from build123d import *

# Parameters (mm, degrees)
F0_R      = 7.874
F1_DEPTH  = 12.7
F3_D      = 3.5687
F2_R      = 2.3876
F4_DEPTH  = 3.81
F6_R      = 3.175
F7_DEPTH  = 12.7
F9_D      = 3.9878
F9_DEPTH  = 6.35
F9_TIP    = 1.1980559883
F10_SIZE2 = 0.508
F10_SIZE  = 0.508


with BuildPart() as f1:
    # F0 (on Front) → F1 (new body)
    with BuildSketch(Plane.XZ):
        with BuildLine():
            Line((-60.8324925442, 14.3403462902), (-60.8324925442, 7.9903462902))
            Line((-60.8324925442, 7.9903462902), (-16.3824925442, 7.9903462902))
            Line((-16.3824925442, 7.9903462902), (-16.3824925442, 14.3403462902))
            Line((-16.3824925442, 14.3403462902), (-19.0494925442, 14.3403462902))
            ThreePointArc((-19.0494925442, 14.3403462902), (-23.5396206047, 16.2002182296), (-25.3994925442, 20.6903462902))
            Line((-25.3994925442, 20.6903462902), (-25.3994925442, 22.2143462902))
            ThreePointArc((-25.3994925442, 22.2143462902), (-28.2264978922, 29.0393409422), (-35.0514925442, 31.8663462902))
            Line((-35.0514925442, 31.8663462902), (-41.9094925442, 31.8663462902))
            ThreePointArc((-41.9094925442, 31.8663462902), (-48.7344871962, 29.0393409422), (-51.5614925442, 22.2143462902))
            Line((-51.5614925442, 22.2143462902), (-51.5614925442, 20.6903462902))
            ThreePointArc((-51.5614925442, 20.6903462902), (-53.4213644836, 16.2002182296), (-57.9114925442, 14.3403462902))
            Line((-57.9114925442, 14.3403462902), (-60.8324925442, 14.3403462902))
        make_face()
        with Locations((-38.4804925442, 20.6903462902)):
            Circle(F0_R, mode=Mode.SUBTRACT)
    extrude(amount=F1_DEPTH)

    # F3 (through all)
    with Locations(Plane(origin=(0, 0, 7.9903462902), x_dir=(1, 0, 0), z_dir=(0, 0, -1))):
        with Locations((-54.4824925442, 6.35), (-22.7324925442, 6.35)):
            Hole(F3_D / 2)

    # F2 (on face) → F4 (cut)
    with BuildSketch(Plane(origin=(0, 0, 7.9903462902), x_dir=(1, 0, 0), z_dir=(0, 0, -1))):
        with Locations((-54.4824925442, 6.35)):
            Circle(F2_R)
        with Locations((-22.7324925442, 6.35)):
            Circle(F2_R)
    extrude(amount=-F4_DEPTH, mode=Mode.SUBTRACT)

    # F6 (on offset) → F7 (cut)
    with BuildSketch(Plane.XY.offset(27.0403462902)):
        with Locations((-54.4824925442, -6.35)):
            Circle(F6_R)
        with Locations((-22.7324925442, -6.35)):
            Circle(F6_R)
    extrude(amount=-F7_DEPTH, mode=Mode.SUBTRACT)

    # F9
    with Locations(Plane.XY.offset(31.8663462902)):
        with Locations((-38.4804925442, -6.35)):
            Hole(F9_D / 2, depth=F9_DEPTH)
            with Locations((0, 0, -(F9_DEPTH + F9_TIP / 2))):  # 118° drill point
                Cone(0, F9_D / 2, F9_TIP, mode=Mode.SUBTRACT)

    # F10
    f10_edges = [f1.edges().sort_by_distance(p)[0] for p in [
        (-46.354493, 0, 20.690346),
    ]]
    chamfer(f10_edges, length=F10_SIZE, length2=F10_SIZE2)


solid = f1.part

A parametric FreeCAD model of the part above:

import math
import FreeCAD as App
import Part
import Sketcher

V = App.Vector
Q = App.Units.Quantity


def edges_at(feature, points):
    """Names of the edges that pass closest to the given points."""
    edges = feature.Shape.Edges
    near = lambda p: min(range(len(edges)), key=lambda i: edges[i].distToShape(Part.Vertex(*p))[0])
    return sorted({f"Edge{near(p) + 1}" for p in points})

doc = App.newDocument("Part")
params = doc.addObject("Spreadsheet::Sheet", "Params")
for row, (alias, value) in enumerate([
    ("sketch1_diameter", "0.62 in"),
    ("sketch1_radius", "0.25 in"),
    ("sketch1_radius2", "0.38 in"),
    ("sketch1_width", "1.75 in"),
    ("sketch1_width2", "0.27 in"),
    ("pad1_length", "0.5 in"),
    ("hole_diameter", "0.1405 in"),
    ("sketch3_diameter", "0.188 in"),
    ("pocket1_length", "0.15 in"),
    ("sketch4_diameter", "0.25 in"),
    ("pocket2_length", "0.5 in"),
    ("sketch5_diameter", "0.157 in"),
    ("hole2_diameter", "0.157 in"),
    ("hole2_depth", "0.25 in"),
    ("chamfer_size", "0.02 in"),
    ("chamfer_size2", "0.02 in"),
], start=1):
    params.set(f"A{row}", alias)
    params.set(f"B{row}", "=" + value)
    params.setAlias(f"B{row}", alias)

body = doc.addObject("PartDesign::Body", "Body")

sketch1 = body.newObject("Sketcher::SketchObject", "Sketch")
sketch1.AttachmentSupport = (doc.getObject("XZ_Plane"), [""])
sketch1.MapMode = "FlatFace"
sketch1.addGeometry(Part.LineSegment(V(-60.832493, 14.340346, 0), V(-60.832493, 7.990346, 0)), False)
sketch1.addGeometry(Part.LineSegment(V(-60.832493, 7.990346, 0), V(-16.382493, 7.990346, 0)), False)
sketch1.addGeometry(Part.LineSegment(V(-16.382493, 7.990346, 0), V(-16.382493, 14.340346, 0)), False)
sketch1.addGeometry(Part.LineSegment(V(-16.382493, 14.340346, 0), V(-19.049493, 14.340346, 0)), False)
sketch1.addGeometry(Part.ArcOfCircle(Part.Circle(V(-19.049493, 20.690346, 0), V(0, 0, 1), 6.35), math.radians(180), math.radians(270)), False)
sketch1.addGeometry(Part.LineSegment(V(-25.399493, 20.690346, 0), V(-25.399493, 22.214346, 0)), False)
sketch1.addGeometry(Part.ArcOfCircle(Part.Circle(V(-35.051493, 22.214346, 0), V(0, 0, 1), 9.652), math.radians(0), math.radians(90)), False)
sketch1.addGeometry(Part.LineSegment(V(-35.051493, 31.866346, 0), V(-41.909493, 31.866346, 0)), False)
sketch1.addGeometry(Part.ArcOfCircle(Part.Circle(V(-41.909493, 22.214346, 0), V(0, 0, 1), 9.652), math.radians(90), math.radians(180)), False)
sketch1.addGeometry(Part.LineSegment(V(-51.561493, 22.214346, 0), V(-51.561493, 20.690346, 0)), False)
sketch1.addGeometry(Part.ArcOfCircle(Part.Circle(V(-57.911493, 20.690346, 0), V(0, 0, 1), 6.35), math.radians(-90), math.radians(0)), False)
sketch1.addGeometry(Part.LineSegment(V(-57.911493, 14.340346, 0), V(-60.832493, 14.340346, 0)), False)
sketch1.addGeometry(Part.Circle(V(-38.480493, 20.690346, 0), V(0, 0, 1), 7.874), False)
sketch1.addConstraint(Sketcher.Constraint("Coincident", 0, 2, 1, 1))
sketch1.addConstraint(Sketcher.Constraint("Coincident", 1, 2, 2, 1))
sketch1.addConstraint(Sketcher.Constraint("Coincident", 2, 2, 3, 1))
sketch1.addConstraint(Sketcher.Constraint("Tangent", 3, 2, 4, 2))
sketch1.addConstraint(Sketcher.Constraint("Tangent", 4, 1, 5, 1))
sketch1.addConstraint(Sketcher.Constraint("Tangent", 5, 2, 6, 1))
sketch1.addConstraint(Sketcher.Constraint("Tangent", 6, 2, 7, 1))
sketch1.addConstraint(Sketcher.Constraint("Tangent", 7, 2, 8, 1))
sketch1.addConstraint(Sketcher.Constraint("Tangent", 8, 2, 9, 1))
sketch1.addConstraint(Sketcher.Constraint("Tangent", 9, 2, 10, 2))
sketch1.addConstraint(Sketcher.Constraint("Tangent", 10, 1, 11, 1))
sketch1.addConstraint(Sketcher.Constraint("Coincident", 11, 2, 0, 1))
sketch1.addConstraint(Sketcher.Constraint("Vertical", 0))
sketch1.addConstraint(Sketcher.Constraint("Horizontal", 1))
sketch1.addConstraint(Sketcher.Constraint("Vertical", 2))
sketch1.addConstraint(Sketcher.Constraint("Horizontal", 3))
sketch1.addConstraint(Sketcher.Constraint("Vertical", 5))
sketch1.addConstraint(Sketcher.Constraint("Horizontal", 7))
sketch1.addConstraint(Sketcher.Constraint("Vertical", 9))
sketch1.addConstraint(Sketcher.Constraint("Horizontal", 11))
sketch1.addConstraint(Sketcher.Constraint("Equal", 6, 8))
sketch1.addConstraint(Sketcher.Constraint("Equal", 4, 10))
sketch1.addConstraint(Sketcher.Constraint("Horizontal", 4, 3, 10, 3))
sketch1.addConstraint(Sketcher.Constraint("Horizontal", 10, 3, 12, 3))
sketch1.addConstraint(Sketcher.Constraint("Diameter", 12, Q("0.62 in")))
sketch1.addConstraint(Sketcher.Constraint("Radius", 4, Q("0.25 in")))
sketch1.addConstraint(Sketcher.Constraint("Radius", 6, Q("0.38 in")))
sketch1.addConstraint(Sketcher.Constraint("DistanceX", 1, 1, 1, 2, Q("1.75 in")))
sketch1.addConstraint(Sketcher.Constraint("DistanceX", 7, 2, 7, 1, Q("0.27 in")))
sketch1.addConstraint(Sketcher.Constraint("DistanceY", 0, 2, 0, 1, Q("0.25 in")))
sketch1.addConstraint(Sketcher.Constraint("DistanceY", 5, 1, 5, 2, Q("0.06 in")))
sketch1.addConstraint(Sketcher.Constraint("DistanceX", 3, 2, 3, 1, Q("0.105 in")))
sketch1.addConstraint(Sketcher.Constraint("DistanceX", 0, 2, 12, 3, Q("0.88 in")))
sketch1.addConstraint(Sketcher.Constraint("DistanceX", 4, 3, -1, 1, 19.049493))
sketch1.addConstraint(Sketcher.Constraint("DistanceY", -1, 1, 4, 3, 20.690346))
sketch1.setExpression("Constraints[24]", "Params.sketch1_diameter")
sketch1.setExpression("Constraints[25]", "Params.sketch1_radius")
sketch1.setExpression("Constraints[26]", "Params.sketch1_radius2")
sketch1.setExpression("Constraints[27]", "Params.sketch1_width")
sketch1.setExpression("Constraints[28]", "Params.sketch1_width2")
pad1 = body.newObject("PartDesign::Pad", "Pad")
pad1.Profile = sketch1
pad1.setExpression("Length", "Params.pad1_length")

sketch2 = body.newObject("Sketcher::SketchObject", "Sketch001")
sketch2.AttachmentSupport = (doc.getObject("XY_Plane"), [""])
sketch2.MapMode = "FlatFace"
sketch2.AttachmentOffset = App.Placement(V(0, 0, 7.990346), App.Rotation())
sketch2.addGeometry(Part.Circle(V(-54.482493, -6.35, 0), V(0, 0, 1), 1.78435), False)
sketch2.addGeometry(Part.Circle(V(-22.732493, -6.35, 0), V(0, 0, 1), 1.78435), False)
sketch2.addConstraint(Sketcher.Constraint("Equal", 0, 1))
sketch2.addConstraint(Sketcher.Constraint("Horizontal", 0, 3, 1, 3))
sketch2.addConstraint(Sketcher.Constraint("Diameter", 0, Q("0.1405 in")))
sketch2.addConstraint(Sketcher.Constraint("DistanceY", 0, 3, -1, 1, Q("0.25 in")))
sketch2.addConstraint(Sketcher.Constraint("DistanceX", 0, 3, 1, 3, Q("1.25 in")))
sketch2.addConstraint(Sketcher.Constraint("DistanceX", 0, 3, -1, 1, 54.482493))
doc.recompute()
hole = body.newObject("PartDesign::Hole", "Hole")
hole.Profile = sketch2
hole.ThreadType = "None"
hole.setExpression("Diameter", "Params.hole_diameter")
hole.DepthType = "ThroughAll"
hole.Reversed = True

sketch3 = body.newObject("Sketcher::SketchObject", "Sketch002")
sketch3.AttachmentSupport = (doc.getObject("XY_Plane"), [""])
sketch3.MapMode = "FlatFace"
sketch3.AttachmentOffset = App.Placement(V(0, 0, 7.990346), App.Rotation())
sketch3.addGeometry(Part.Circle(V(-54.482493, -6.35, 0), V(0, 0, 1), 2.3876), False)
sketch3.addGeometry(Part.Circle(V(-22.732493, -6.35, 0), V(0, 0, 1), 2.3876), False)
sketch3.addConstraint(Sketcher.Constraint("Equal", 0, 1))
sketch3.addConstraint(Sketcher.Constraint("Horizontal", 0, 3, 1, 3))
sketch3.addConstraint(Sketcher.Constraint("Diameter", 0, Q("0.188 in")))
sketch3.addConstraint(Sketcher.Constraint("DistanceY", 0, 3, -1, 1, Q("0.25 in")))
sketch3.addConstraint(Sketcher.Constraint("DistanceX", 0, 3, 1, 3, Q("1.25 in")))
sketch3.addConstraint(Sketcher.Constraint("DistanceX", 0, 3, -1, 1, 54.482493))
sketch3.setExpression("Constraints[2]", "Params.sketch3_diameter")
pocket1 = body.newObject("PartDesign::Pocket", "Pocket")
pocket1.Profile = sketch3
pocket1.setExpression("Length", "Params.pocket1_length")
pocket1.Reversed = True

sketch4 = body.newObject("Sketcher::SketchObject", "Sketch003")
sketch4.AttachmentSupport = (doc.getObject("XY_Plane"), [""])
sketch4.MapMode = "FlatFace"
sketch4.AttachmentOffset = App.Placement(V(0, 0, 27.040346), App.Rotation())
sketch4.addGeometry(Part.Circle(V(-54.482493, -6.35, 0), V(0, 0, 1), 3.175), False)
sketch4.addGeometry(Part.Circle(V(-22.732493, -6.35, 0), V(0, 0, 1), 3.175), False)
sketch4.addConstraint(Sketcher.Constraint("Equal", 0, 1))
sketch4.addConstraint(Sketcher.Constraint("Horizontal", 0, 3, 1, 3))
sketch4.addConstraint(Sketcher.Constraint("Diameter", 0, Q("0.25 in")))
sketch4.addConstraint(Sketcher.Constraint("DistanceY", 0, 3, -1, 1, Q("0.25 in")))
sketch4.addConstraint(Sketcher.Constraint("DistanceX", 0, 3, 1, 3, Q("1.25 in")))
sketch4.addConstraint(Sketcher.Constraint("DistanceX", 0, 3, -1, 1, 54.482493))
sketch4.setExpression("Constraints[2]", "Params.sketch4_diameter")
pocket2 = body.newObject("PartDesign::Pocket", "Pocket001")
pocket2.Profile = sketch4
pocket2.setExpression("Length", "Params.pocket2_length")

sketch5 = body.newObject("Sketcher::SketchObject", "Sketch004")
sketch5.AttachmentSupport = (doc.getObject("XY_Plane"), [""])
sketch5.MapMode = "FlatFace"
sketch5.AttachmentOffset = App.Placement(V(0, 0, 31.866346), App.Rotation())
sketch5.addGeometry(Part.Circle(V(-38.480493, -6.35, 0), V(0, 0, 1), 1.9939), False)
sketch5.addConstraint(Sketcher.Constraint("Diameter", 0, Q("0.157 in")))
sketch5.addConstraint(Sketcher.Constraint("DistanceY", 0, 3, -1, 1, Q("0.25 in")))
sketch5.addConstraint(Sketcher.Constraint("DistanceX", 0, 3, -1, 1, 38.480493))
sketch5.setExpression("Constraints[0]", "Params.sketch5_diameter")
doc.recompute()
hole2 = body.newObject("PartDesign::Hole", "Hole001")
hole2.Profile = sketch5
hole2.ThreadType = "None"
hole2.setExpression("Diameter", "Params.hole2_diameter")
hole2.DepthType = "Dimension"
hole2.setExpression("Depth", "Params.hole2_depth")
hole2.DrillPoint = "Angled"
hole2.DrillPointAngle = 118
doc.recompute()

chamfer = body.newObject("PartDesign::Chamfer", "Chamfer")
chamfer.Base = (hole2, edges_at(hole2, [(-46.354, 0, 20.69)]))
chamfer.ChamferType = "Two distances"
chamfer.setExpression("Size", "Params.chamfer_size")
chamfer.setExpression("Size2", "Params.chamfer_size2")

doc.recompute()
